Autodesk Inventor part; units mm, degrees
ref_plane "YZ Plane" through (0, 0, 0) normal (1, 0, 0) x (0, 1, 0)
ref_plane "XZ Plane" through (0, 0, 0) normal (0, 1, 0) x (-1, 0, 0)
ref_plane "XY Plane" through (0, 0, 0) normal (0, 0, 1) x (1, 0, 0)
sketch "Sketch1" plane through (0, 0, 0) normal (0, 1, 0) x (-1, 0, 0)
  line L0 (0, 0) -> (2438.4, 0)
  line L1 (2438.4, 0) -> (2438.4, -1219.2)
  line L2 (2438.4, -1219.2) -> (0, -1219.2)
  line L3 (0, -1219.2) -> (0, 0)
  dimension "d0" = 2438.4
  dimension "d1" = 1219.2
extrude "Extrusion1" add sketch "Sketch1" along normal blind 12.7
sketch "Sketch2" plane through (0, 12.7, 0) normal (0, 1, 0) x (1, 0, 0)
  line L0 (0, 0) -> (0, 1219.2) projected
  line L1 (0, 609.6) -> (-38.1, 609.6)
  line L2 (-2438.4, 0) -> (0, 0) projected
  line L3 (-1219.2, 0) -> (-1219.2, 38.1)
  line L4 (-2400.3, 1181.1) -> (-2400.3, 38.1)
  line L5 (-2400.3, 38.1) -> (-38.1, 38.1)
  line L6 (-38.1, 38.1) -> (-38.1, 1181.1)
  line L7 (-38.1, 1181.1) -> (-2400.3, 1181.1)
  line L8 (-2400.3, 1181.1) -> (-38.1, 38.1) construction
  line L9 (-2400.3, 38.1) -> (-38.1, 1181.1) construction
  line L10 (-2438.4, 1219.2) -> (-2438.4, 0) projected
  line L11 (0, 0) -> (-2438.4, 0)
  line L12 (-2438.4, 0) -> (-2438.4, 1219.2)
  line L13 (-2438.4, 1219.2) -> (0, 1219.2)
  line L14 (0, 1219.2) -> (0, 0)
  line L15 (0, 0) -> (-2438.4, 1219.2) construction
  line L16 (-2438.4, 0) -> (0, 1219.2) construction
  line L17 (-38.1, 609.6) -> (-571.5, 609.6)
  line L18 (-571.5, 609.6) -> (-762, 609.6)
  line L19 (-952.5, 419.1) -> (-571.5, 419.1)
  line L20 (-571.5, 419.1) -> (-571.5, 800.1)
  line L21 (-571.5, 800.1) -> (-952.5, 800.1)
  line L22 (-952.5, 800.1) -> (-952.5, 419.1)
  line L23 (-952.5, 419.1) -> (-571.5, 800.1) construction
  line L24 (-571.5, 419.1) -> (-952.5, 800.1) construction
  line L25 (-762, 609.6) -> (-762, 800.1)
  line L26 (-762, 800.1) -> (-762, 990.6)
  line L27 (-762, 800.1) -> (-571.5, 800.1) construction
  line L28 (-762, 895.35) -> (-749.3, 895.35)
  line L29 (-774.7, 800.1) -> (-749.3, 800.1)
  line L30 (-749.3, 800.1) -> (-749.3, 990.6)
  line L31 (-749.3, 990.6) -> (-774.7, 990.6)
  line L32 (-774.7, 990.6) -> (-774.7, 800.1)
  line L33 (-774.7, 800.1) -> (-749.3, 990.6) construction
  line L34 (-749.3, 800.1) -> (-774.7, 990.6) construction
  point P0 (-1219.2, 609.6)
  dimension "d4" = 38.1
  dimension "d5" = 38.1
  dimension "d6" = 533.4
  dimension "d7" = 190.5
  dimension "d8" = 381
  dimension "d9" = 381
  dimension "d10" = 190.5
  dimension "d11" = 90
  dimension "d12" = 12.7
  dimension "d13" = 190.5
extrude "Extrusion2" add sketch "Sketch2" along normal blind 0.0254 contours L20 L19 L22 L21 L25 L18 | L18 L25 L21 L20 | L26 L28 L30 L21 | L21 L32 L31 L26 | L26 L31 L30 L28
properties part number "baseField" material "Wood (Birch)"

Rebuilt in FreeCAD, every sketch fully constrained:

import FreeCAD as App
import Part
import Sketcher
Q = App.Units.Quantity

doc = App.newDocument("Part")
body = doc.addObject("PartDesign::Body", "Body")

sketch1 = body.newObject("Sketcher::SketchObject", "Sketch")
sketch1.AttachmentSupport = (doc.getObject("XZ_Plane"), [""])
sketch1.MapMode = "FlatFace"
sketch1.addGeometry([
    Part.LineSegment(App.Vector(-2438, 0, 0), App.Vector(0, 0, 0)),
    Part.LineSegment(App.Vector(0, 0, 0), App.Vector(0, -1219, 0)),
    Part.LineSegment(App.Vector(0, -1219, 0), App.Vector(-2438, -1219, 0)),
    Part.LineSegment(App.Vector(-2438, -1219, 0), App.Vector(-2438, 0, 0)),
], False)
sketch1.addConstraint([
    Sketcher.Constraint("Coincident", 0, 2, 1, 1),
    Sketcher.Constraint("Coincident", 1, 2, 2, 1),
    Sketcher.Constraint("Coincident", 2, 2, 3, 1),
    Sketcher.Constraint("Coincident", 3, 2, 0, 1),
    Sketcher.Constraint("Horizontal", 0),
    Sketcher.Constraint("Vertical", 1),
    Sketcher.Constraint("Horizontal", 2),
    Sketcher.Constraint("Vertical", 3),
    Sketcher.Constraint("Coincident", 0, 2, -1, 1),
    Sketcher.Constraint("DistanceX", 0, 1, 0, 2, Q("96 in")),
    Sketcher.Constraint("DistanceY", 1, 2, 1, 1, Q("48 in")),
])
pad1 = body.newObject("PartDesign::Pad", "Pad")
pad1.Profile = sketch1
pad1.Length = Q("0.5 in")
pad1.Reversed = True

sketch2 = body.newObject("Sketcher::SketchObject", "Sketch001")
sketch2.AttachmentSupport = (doc.getObject("XZ_Plane"), [""])
sketch2.MapMode = "FlatFace"
sketch2.AttachmentOffset = App.Placement(App.Vector(0, 0, -0.5 * 25.4), App.Rotation())
sketch2.addGeometry([
    Part.LineSegment(App.Vector(-572, -419, 0), App.Vector(-572, -800, 0)),
    Part.LineSegment(App.Vector(-572, -800, 0), App.Vector(-749, -800, 0)),
    Part.LineSegment(App.Vector(-749, -800, 0), App.Vector(-749, -991, 0)),
    Part.LineSegment(App.Vector(-749, -991, 0), App.Vector(-775, -991, 0)),
    Part.LineSegment(App.Vector(-775, -991, 0), App.Vector(-775, -800, 0)),
    Part.LineSegment(App.Vector(-775, -800, 0), App.Vector(-952, -800, 0)),
    Part.LineSegment(App.Vector(-952, -800, 0), App.Vector(-952, -419, 0)),
    Part.LineSegment(App.Vector(-952, -419, 0), App.Vector(-572, -419, 0)),
], False)
sketch2.addConstraint([
    Sketcher.Constraint("Coincident", 0, 2, 1, 1),
    Sketcher.Constraint("Coincident", 1, 2, 2, 1),
    Sketcher.Constraint("Coincident", 2, 2, 3, 1),
    Sketcher.Constraint("Coincident", 3, 2, 4, 1),
    Sketcher.Constraint("Coincident", 4, 2, 5, 1),
    Sketcher.Constraint("Coincident", 5, 2, 6, 1),
    Sketcher.Constraint("Coincident", 6, 2, 7, 1),
    Sketcher.Constraint("Coincident", 7, 2, 0, 1),
    Sketcher.Constraint("Vertical", 0),
    Sketcher.Constraint("Horizontal", 1),
    Sketcher.Constraint("Vertical", 2),
    Sketcher.Constraint("Horizontal", 3),
    Sketcher.Constraint("Vertical", 4),
    Sketcher.Constraint("Horizontal", 5),
    Sketcher.Constraint("Vertical", 6),
    Sketcher.Constraint("Horizontal", 7),
    Sketcher.Constraint("Horizontal", 1, 2, 4, 2),
    Sketcher.Constraint("Equal", 1, 5),
    Sketcher.Constraint("Equal", 7, 0),
    Sketcher.Constraint("DistanceX", 7, 1, 7, 2, Q("15 in")),
    Sketcher.Constraint("DistanceY", 2, 2, 2, 1, Q("7.5 in")),
    Sketcher.Constraint("DistanceX", 1, 2, 1, 1, Q("7 in")),
    Sketcher.Constraint("DistanceY", 2, 2, -1, 1, Q("39 in")),
    Sketcher.Constraint("DistanceX", 0, 2, -1, 1, Q("22.5 in")),
])
pad2 = body.newObject("PartDesign::Pad", "Pad001")
pad2.Profile = sketch2
pad2.Length = Q("0.001 in")
pad2.Reversed = True

doc.recompute()
